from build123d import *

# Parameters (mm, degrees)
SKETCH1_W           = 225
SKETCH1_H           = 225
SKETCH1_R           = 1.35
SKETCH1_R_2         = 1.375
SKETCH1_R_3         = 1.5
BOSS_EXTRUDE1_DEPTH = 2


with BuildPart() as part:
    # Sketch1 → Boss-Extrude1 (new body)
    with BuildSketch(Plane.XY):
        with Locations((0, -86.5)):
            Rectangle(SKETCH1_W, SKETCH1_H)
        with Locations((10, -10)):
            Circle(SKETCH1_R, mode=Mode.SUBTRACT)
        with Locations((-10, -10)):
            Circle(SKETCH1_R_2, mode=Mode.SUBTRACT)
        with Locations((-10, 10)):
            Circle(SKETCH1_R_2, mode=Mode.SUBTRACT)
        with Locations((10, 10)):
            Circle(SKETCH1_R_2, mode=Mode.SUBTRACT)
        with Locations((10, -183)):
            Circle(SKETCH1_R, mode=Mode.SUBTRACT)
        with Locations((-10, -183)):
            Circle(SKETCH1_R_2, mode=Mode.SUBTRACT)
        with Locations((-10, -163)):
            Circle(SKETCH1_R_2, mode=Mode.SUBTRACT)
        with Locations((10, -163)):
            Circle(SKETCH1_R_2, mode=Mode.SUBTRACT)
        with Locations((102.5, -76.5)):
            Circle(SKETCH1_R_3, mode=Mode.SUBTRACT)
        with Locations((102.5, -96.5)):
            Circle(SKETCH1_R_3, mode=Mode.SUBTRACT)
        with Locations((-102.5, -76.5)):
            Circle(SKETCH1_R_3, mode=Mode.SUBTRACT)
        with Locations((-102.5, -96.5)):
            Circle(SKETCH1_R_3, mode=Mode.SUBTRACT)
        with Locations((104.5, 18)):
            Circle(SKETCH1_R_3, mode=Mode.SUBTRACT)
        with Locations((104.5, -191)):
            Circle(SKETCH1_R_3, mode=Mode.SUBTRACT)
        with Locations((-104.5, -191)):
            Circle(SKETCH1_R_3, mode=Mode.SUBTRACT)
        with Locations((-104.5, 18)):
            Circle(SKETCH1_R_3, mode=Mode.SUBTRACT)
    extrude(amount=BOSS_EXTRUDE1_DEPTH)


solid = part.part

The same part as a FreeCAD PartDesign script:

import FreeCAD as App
import Part
import Sketcher


def add_polygon(sketch, points):
    """Adds a closed chain of lines whose ends are joined by coincident constraints."""
    first, n = sketch.GeometryCount, len(points)
    for a, b in zip(points, points[1:] + points[:1]):
        sketch.addGeometry(Part.LineSegment(App.Vector(*a, 0), App.Vector(*b, 0)), False)
    for i in range(n):
        sketch.addConstraint(Sketcher.Constraint("Coincident", first + i, 2, first + (i + 1) % n, 1))

doc = App.newDocument("Part")
body = doc.addObject("PartDesign::Body", "Body")

# Sketch on XY plane
sketch1 = body.newObject("Sketcher::SketchObject", "Sketch")
sketch1.AttachmentSupport = (doc.getObject("XY_Plane"), [""])
sketch1.MapMode = "FlatFace"
add_polygon(sketch1, [(-112.5, 26), (-112.5, -199), (112.5, -199), (112.5, 26)])  # lines 0-3
sketch1.addGeometry(Part.Circle(App.Vector(-104.5, -191, 0), App.Vector(0, 0, 1), 1.5), False)  # 4
sketch1.addGeometry(Part.Circle(App.Vector(-10, -183, 0), App.Vector(0, 0, 1), 1.4), False)  # 5
sketch1.addGeometry(Part.Circle(App.Vector(-10, -163, 0), App.Vector(0, 0, 1), 1.4), False)  # 6
sketch1.addGeometry(Part.Circle(App.Vector(-102.5, -96.5, 0), App.Vector(0, 0, 1), 1.5), False)  # 7
sketch1.addGeometry(Part.Circle(App.Vector(10, -183, 0), App.Vector(0, 0, 1), 1.4), False)  # 8
sketch1.addGeometry(Part.Circle(App.Vector(10, -163, 0), App.Vector(0, 0, 1), 1.4), False)  # 9
sketch1.addGeometry(Part.Circle(App.Vector(104.5, -191, 0), App.Vector(0, 0, 1), 1.5), False)  # 10
sketch1.addGeometry(Part.Circle(App.Vector(102.5, -96.5, 0), App.Vector(0, 0, 1), 1.5), False)  # 11
sketch1.addGeometry(Part.Circle(App.Vector(-102.5, -76.5, 0), App.Vector(0, 0, 1), 1.5), False)  # 12
sketch1.addGeometry(Part.Circle(App.Vector(-104.5, 18, 0), App.Vector(0, 0, 1), 1.5), False)  # 13
sketch1.addGeometry(Part.Circle(App.Vector(-10, -10, 0), App.Vector(0, 0, 1), 1.4), False)  # 14
sketch1.addGeometry(Part.Circle(App.Vector(-10, 10, 0), App.Vector(0, 0, 1), 1.4), False)  # 15
sketch1.addGeometry(Part.Circle(App.Vector(102.5, -76.5, 0), App.Vector(0, 0, 1), 1.5), False)  # 16
sketch1.addGeometry(Part.Circle(App.Vector(10, -10, 0), App.Vector(0, 0, 1), 1.4), False)  # 17
sketch1.addGeometry(Part.Circle(App.Vector(10, 10, 0), App.Vector(0, 0, 1), 1.4), False)  # 18
sketch1.addGeometry(Part.Circle(App.Vector(104.5, 18, 0), App.Vector(0, 0, 1), 1.5), False)  # 19
sketch1.addConstraint(Sketcher.Constraint("Vertical", 0))
sketch1.addConstraint(Sketcher.Constraint("Horizontal", 1))
sketch1.addConstraint(Sketcher.Constraint("Vertical", 2))
sketch1.addConstraint(Sketcher.Constraint("Horizontal", 3))
sketch1.addConstraint(Sketcher.Constraint("Equal", 5, 6))
sketch1.addConstraint(Sketcher.Constraint("Equal", 4, 7))
sketch1.addConstraint(Sketcher.Constraint("Equal", 6, 9))
sketch1.addConstraint(Sketcher.Constraint("Equal", 7, 10))
sketch1.addConstraint(Sketcher.Constraint("Equal", 10, 11))
sketch1.addConstraint(Sketcher.Constraint("Equal", 11, 12))
sketch1.addConstraint(Sketcher.Constraint("Equal", 12, 13))
sketch1.addConstraint(Sketcher.Constraint("Equal", 9, 14))
sketch1.addConstraint(Sketcher.Constraint("Equal", 14, 15))
sketch1.addConstraint(Sketcher.Constraint("Equal", 13, 16))
sketch1.addConstraint(Sketcher.Constraint("Equal", 8, 17))
sketch1.addConstraint(Sketcher.Constraint("Equal", 15, 18))
sketch1.addConstraint(Sketcher.Constraint("Equal", 16, 19))
sketch1.addConstraint(Sketcher.Constraint("Symmetric", 15, 3, 17, 3, -1, 1))
sketch1.addConstraint(Sketcher.Constraint("Symmetric", 14, 3, 18, 3, -1, 1))
sketch1.addConstraint(Sketcher.Constraint("Symmetric", 5, 3, 8, 3, -2))
sketch1.addConstraint(Sketcher.Constraint("Symmetric", 6, 3, 9, 3, -2))
sketch1.addConstraint(Sketcher.Constraint("Symmetric", 4, 3, 10, 3, -2))
sketch1.addConstraint(Sketcher.Constraint("Symmetric", 7, 3, 11, 3, -2))
sketch1.addConstraint(Sketcher.Constraint("Symmetric", 12, 3, 16, 3, -2))
sketch1.addConstraint(Sketcher.Constraint("Symmetric", 14, 3, 17, 3, -2))
sketch1.addConstraint(Sketcher.Constraint("Symmetric", 13, 3, 19, 3, -2))
sketch1.addConstraint(Sketcher.Constraint("Vertical", 5, 3, 6, 3))
sketch1.addConstraint(Sketcher.Constraint("Vertical", 7, 3, 12, 3))
sketch1.addConstraint(Sketcher.Constraint("Vertical", 4, 3, 13, 3))
sketch1.addConstraint(Sketcher.Constraint("Vertical", 6, 3, 14, 3))
sketch1.addConstraint(Sketcher.Constraint("Equal", 3, 0))
sketch1.addConstraint(Sketcher.Constraint("Diameter", 4, 3.0))
sketch1.addConstraint(Sketcher.Constraint("Diameter", 8, 2.7))
sketch1.addConstraint(Sketcher.Constraint("Diameter", 5, 2.75))
sketch1.addConstraint(Sketcher.Constraint("DistanceX", 1, 1, 1, 2, 225.0))
sketch1.addConstraint(Sketcher.Constraint("DistanceY", 4, 3, -1, 1, 191.0))
sketch1.addConstraint(Sketcher.Constraint("DistanceX", 5, 3, -1, 1, 10.0))
sketch1.addConstraint(Sketcher.Constraint("DistanceY", 5, 3, -1, 1, 183.0))
sketch1.addConstraint(Sketcher.Constraint("DistanceY", 6, 3, -1, 1, 163.0))
sketch1.addConstraint(Sketcher.Constraint("DistanceY", -1, 1, 13, 3, 18.0))
sketch1.addConstraint(Sketcher.Constraint("DistanceY", 14, 3, -1, 1, 10.0))
sketch1.addConstraint(Sketcher.Constraint("DistanceY", 0, 2, -1, 1, 199.0))
sketch1.addConstraint(Sketcher.Constraint("DistanceX", 4, 3, 7, 3, 2.0))
sketch1.addConstraint(Sketcher.Constraint("DistanceX", 4, 3, 10, 3, 209.0))
sketch1.addConstraint(Sketcher.Constraint("DistanceY", 7, 3, 12, 3, 20.0))
sketch1.addConstraint(Sketcher.Constraint("DistanceX", 0, 2, 4, 3, 8.0))
sketch1.addConstraint(Sketcher.Constraint("DistanceY", 7, 3, -1, 1, 96.5))
pad1 = body.newObject("PartDesign::Pad", "Pad")
pad1.Profile = sketch1
pad1.Length = 2

doc.recompute()
